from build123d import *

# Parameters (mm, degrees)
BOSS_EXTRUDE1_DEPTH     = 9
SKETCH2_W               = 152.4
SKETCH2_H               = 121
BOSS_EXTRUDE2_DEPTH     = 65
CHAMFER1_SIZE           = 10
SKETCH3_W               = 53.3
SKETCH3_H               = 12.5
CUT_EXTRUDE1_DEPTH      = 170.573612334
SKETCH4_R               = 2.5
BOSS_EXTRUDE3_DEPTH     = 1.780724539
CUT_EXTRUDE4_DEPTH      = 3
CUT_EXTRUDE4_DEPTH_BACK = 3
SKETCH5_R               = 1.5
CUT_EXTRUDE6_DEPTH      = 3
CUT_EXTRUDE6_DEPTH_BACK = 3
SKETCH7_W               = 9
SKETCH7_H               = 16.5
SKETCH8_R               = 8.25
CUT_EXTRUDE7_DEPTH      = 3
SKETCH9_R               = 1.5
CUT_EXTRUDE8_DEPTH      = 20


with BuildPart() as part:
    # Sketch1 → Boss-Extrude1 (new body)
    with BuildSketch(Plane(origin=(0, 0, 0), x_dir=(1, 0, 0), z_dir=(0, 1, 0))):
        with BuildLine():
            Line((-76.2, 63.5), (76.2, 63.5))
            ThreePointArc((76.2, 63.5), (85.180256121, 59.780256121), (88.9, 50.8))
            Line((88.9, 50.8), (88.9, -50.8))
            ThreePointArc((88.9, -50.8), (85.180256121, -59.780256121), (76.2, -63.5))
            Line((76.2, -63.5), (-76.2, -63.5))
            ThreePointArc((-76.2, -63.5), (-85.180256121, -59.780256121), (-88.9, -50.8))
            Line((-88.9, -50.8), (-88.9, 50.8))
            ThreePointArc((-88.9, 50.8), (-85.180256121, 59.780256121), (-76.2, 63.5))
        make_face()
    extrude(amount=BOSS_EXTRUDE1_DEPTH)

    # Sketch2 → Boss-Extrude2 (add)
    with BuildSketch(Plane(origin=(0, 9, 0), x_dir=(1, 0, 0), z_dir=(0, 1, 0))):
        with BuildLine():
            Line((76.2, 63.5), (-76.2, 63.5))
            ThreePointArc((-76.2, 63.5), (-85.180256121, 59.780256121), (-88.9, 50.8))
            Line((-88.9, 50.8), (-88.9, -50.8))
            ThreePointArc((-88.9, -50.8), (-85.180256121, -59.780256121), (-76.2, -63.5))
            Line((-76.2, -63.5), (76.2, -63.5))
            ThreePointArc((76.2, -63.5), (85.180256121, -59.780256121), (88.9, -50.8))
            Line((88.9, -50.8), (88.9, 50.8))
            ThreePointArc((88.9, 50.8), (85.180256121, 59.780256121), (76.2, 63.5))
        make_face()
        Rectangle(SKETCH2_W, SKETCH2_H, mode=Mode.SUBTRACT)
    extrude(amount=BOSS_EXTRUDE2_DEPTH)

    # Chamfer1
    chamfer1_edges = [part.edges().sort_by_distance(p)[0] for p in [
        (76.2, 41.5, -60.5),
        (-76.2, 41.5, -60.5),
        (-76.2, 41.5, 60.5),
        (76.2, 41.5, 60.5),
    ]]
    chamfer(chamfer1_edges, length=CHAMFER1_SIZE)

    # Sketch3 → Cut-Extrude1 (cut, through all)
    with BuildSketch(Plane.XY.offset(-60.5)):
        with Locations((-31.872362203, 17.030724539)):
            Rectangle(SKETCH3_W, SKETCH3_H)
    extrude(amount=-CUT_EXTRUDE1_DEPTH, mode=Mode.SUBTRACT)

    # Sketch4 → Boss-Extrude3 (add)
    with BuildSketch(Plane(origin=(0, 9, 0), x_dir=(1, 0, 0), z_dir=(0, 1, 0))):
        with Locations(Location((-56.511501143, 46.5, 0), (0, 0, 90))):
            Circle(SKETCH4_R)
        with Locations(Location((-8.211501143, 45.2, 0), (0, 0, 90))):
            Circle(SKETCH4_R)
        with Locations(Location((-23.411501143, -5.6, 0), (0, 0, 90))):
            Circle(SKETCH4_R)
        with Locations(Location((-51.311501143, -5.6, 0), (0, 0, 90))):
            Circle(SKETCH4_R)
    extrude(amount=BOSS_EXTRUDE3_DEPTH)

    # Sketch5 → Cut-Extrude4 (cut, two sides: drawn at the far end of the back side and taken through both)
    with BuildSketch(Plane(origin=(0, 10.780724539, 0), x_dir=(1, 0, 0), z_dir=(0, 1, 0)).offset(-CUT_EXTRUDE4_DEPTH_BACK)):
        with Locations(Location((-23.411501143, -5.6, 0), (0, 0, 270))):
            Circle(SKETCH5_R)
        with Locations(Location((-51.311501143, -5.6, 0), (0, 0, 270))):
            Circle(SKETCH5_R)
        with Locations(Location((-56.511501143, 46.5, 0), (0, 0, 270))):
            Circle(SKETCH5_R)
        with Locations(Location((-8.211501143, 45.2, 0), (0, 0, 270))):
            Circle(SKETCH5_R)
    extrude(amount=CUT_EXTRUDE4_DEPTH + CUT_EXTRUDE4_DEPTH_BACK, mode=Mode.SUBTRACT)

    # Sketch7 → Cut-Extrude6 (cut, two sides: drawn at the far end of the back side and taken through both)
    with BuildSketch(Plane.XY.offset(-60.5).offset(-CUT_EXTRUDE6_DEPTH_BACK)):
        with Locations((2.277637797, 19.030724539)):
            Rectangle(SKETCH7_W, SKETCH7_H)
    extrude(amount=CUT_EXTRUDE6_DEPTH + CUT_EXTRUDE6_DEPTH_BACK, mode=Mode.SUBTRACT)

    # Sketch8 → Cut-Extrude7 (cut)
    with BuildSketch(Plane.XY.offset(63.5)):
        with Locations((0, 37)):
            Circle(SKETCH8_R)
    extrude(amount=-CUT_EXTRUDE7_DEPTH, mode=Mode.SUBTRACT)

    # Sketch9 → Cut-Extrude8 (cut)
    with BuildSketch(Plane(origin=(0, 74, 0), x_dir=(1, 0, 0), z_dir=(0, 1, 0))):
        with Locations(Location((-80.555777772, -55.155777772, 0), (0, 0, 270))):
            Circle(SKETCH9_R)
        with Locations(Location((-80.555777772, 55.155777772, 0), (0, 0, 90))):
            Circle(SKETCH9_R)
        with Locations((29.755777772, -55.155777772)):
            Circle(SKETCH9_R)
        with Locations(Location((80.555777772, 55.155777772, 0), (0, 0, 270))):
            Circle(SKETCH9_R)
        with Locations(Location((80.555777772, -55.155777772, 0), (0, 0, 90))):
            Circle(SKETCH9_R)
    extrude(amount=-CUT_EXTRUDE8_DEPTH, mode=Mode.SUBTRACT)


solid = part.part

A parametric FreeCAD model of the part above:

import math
import FreeCAD as App
import Part
import Sketcher


def edges_at(feature, points):
    """Names of the edges that pass closest to the given points."""
    edges = feature.Shape.Edges
    near = lambda p: min(range(len(edges)), key=lambda i: edges[i].distToShape(Part.Vertex(*p))[0])
    return sorted({f"Edge{near(p) + 1}" for p in points})

doc = App.newDocument("Part")
body = doc.addObject("PartDesign::Body", "Body")

sketch1 = body.newObject("Sketcher::SketchObject", "Sketch")
sketch1.AttachmentSupport = (doc.getObject("XZ_Plane"), [""])
sketch1.MapMode = "FlatFace"
sketch1.addGeometry(Part.LineSegment(App.Vector(76, -64, 0), App.Vector(-76, -64, 0)), False)
sketch1.addGeometry(Part.ArcOfCircle(Part.Circle(App.Vector(-76, -51, 0), App.Vector(0, 0, 1), 13), math.radians(180), math.radians(270)), False)
sketch1.addGeometry(Part.LineSegment(App.Vector(-89, -51, 0), App.Vector(-89, 51, 0)), False)
sketch1.addGeometry(Part.ArcOfCircle(Part.Circle(App.Vector(-76, 51, 0), App.Vector(0, 0, 1), 13), math.radians(90), math.radians(180)), False)
sketch1.addGeometry(Part.LineSegment(App.Vector(-76, 64, 0), App.Vector(76, 64, 0)), False)
sketch1.addGeometry(Part.ArcOfCircle(Part.Circle(App.Vector(76, 51, 0), App.Vector(0, 0, 1), 13), math.radians(0), math.radians(90)), False)
sketch1.addGeometry(Part.LineSegment(App.Vector(89, 51, 0), App.Vector(89, -51, 0)), False)
sketch1.addGeometry(Part.ArcOfCircle(Part.Circle(App.Vector(76, -51, 0), App.Vector(0, 0, 1), 13), math.radians(-90), math.radians(0)), False)
sketch1.addConstraint(Sketcher.Constraint("Tangent", 0, 2, 1, 2))
sketch1.addConstraint(Sketcher.Constraint("Tangent", 1, 1, 2, 1))
sketch1.addConstraint(Sketcher.Constraint("Tangent", 2, 2, 3, 2))
sketch1.addConstraint(Sketcher.Constraint("Tangent", 3, 1, 4, 1))
sketch1.addConstraint(Sketcher.Constraint("Tangent", 4, 2, 5, 2))
sketch1.addConstraint(Sketcher.Constraint("Tangent", 5, 1, 6, 1))
sketch1.addConstraint(Sketcher.Constraint("Tangent", 6, 2, 7, 2))
sketch1.addConstraint(Sketcher.Constraint("Tangent", 7, 1, 0, 1))
sketch1.addConstraint(Sketcher.Constraint("Horizontal", 0))
sketch1.addConstraint(Sketcher.Constraint("Vertical", 2))
sketch1.addConstraint(Sketcher.Constraint("Horizontal", 4))
sketch1.addConstraint(Sketcher.Constraint("Vertical", 6))
sketch1.addConstraint(Sketcher.Constraint("Equal", 1, 3))
sketch1.addConstraint(Sketcher.Constraint("Equal", 3, 5))
sketch1.addConstraint(Sketcher.Constraint("Equal", 5, 7))
sketch1.addConstraint(Sketcher.Constraint("Symmetric", 1, 3, 5, 3, -1, 1))
sketch1.addConstraint(Sketcher.Constraint("Radius", 1, 12.7))
sketch1.addConstraint(Sketcher.Constraint("DistanceX", 0, 2, 0, 1, 152.4))
sketch1.addConstraint(Sketcher.Constraint("DistanceY", 2, 1, 2, 2, 101.6))
pad1 = body.newObject("PartDesign::Pad", "Pad")
pad1.Profile = sketch1
pad1.Length = 9
pad1.Reversed = True

sketch2 = body.newObject("Sketcher::SketchObject", "Sketch001")
sketch2.AttachmentSupport = (doc.getObject("XZ_Plane"), [""])
sketch2.MapMode = "FlatFace"
sketch2.AttachmentOffset = App.Placement(App.Vector(0, 0, -9), App.Rotation())
sketch2.addGeometry(Part.LineSegment(App.Vector(76, -64, 0), App.Vector(-76, -64, 0)), False)
sketch2.addGeometry(Part.ArcOfCircle(Part.Circle(App.Vector(-76, -51, 0), App.Vector(0, 0, 1), 13), math.radians(180), math.radians(270)), False)
sketch2.addGeometry(Part.LineSegment(App.Vector(-89, -51, 0), App.Vector(-89, 51, 0)), False)
sketch2.addGeometry(Part.ArcOfCircle(Part.Circle(App.Vector(-76, 51, 0), App.Vector(0, 0, 1), 13), math.radians(90), math.radians(180)), False)
sketch2.addGeometry(Part.LineSegment(App.Vector(-76, 64, 0), App.Vector(76, 64, 0)), False)
sketch2.addGeometry(Part.ArcOfCircle(Part.Circle(App.Vector(76, 51, 0), App.Vector(0, 0, 1), 13), math.radians(0), math.radians(90)), False)
sketch2.addGeometry(Part.LineSegment(App.Vector(89, 51, 0), App.Vector(89, -51, 0)), False)
sketch2.addGeometry(Part.ArcOfCircle(Part.Circle(App.Vector(76, -51, 0), App.Vector(0, 0, 1), 13), math.radians(-90), math.radians(0)), False)
sketch2.addGeometry(Part.LineSegment(App.Vector(76, 60, 0), App.Vector(-76, 60, 0)), False)
sketch2.addGeometry(Part.LineSegment(App.Vector(-76, 60, 0), App.Vector(-76, -60, 0)), False)
sketch2.addGeometry(Part.LineSegment(App.Vector(-76, -60, 0), App.Vector(76, -60, 0)), False)
sketch2.addGeometry(Part.LineSegment(App.Vector(76, -60, 0), App.Vector(76, 60, 0)), False)
sketch2.addConstraint(Sketcher.Constraint("Tangent", 0, 2, 1, 2))
sketch2.addConstraint(Sketcher.Constraint("Tangent", 1, 1, 2, 1))
sketch2.addConstraint(Sketcher.Constraint("Tangent", 2, 2, 3, 2))
sketch2.addConstraint(Sketcher.Constraint("Tangent", 3, 1, 4, 1))
sketch2.addConstraint(Sketcher.Constraint("Tangent", 4, 2, 5, 2))
sketch2.addConstraint(Sketcher.Constraint("Tangent", 5, 1, 6, 1))
sketch2.addConstraint(Sketcher.Constraint("Tangent", 6, 2, 7, 2))
sketch2.addConstraint(Sketcher.Constraint("Tangent", 7, 1, 0, 1))
sketch2.addConstraint(Sketcher.Constraint("Coincident", 8, 2, 9, 1))
sketch2.addConstraint(Sketcher.Constraint("Coincident", 9, 2, 10, 1))
sketch2.addConstraint(Sketcher.Constraint("Coincident", 10, 2, 11, 1))
sketch2.addConstraint(Sketcher.Constraint("Coincident", 11, 2, 8, 1))
sketch2.addConstraint(Sketcher.Constraint("Horizontal", 0))
sketch2.addConstraint(Sketcher.Constraint("Vertical", 2))
sketch2.addConstraint(Sketcher.Constraint("Horizontal", 4))
sketch2.addConstraint(Sketcher.Constraint("Vertical", 6))
sketch2.addConstraint(Sketcher.Constraint("Horizontal", 8))
sketch2.addConstraint(Sketcher.Constraint("Vertical", 9))
sketch2.addConstraint(Sketcher.Constraint("Horizontal", 10))
sketch2.addConstraint(Sketcher.Constraint("Vertical", 11))
sketch2.addConstraint(Sketcher.Constraint("Equal", 1, 3))
sketch2.addConstraint(Sketcher.Constraint("Equal", 3, 5))
sketch2.addConstraint(Sketcher.Constraint("Equal", 5, 7))
sketch2.addConstraint(Sketcher.Constraint("Symmetric", 1, 3, 5, 3, -1, 1))
sketch2.addConstraint(Sketcher.Constraint("Symmetric", 8, 2, 10, 2, -1, 1))
sketch2.addConstraint(Sketcher.Constraint("Vertical", 3, 1, 8, 2))
sketch2.addConstraint(Sketcher.Constraint("Radius", 1, 12.7))
sketch2.addConstraint(Sketcher.Constraint("DistanceY", 9, 2, 9, 1, 121.0))
sketch2.addConstraint(Sketcher.Constraint("DistanceX", 0, 2, 0, 1, 152.4))
sketch2.addConstraint(Sketcher.Constraint("DistanceY", 2, 1, 2, 2, 101.6))
pad2 = body.newObject("PartDesign::Pad", "Pad001")
pad2.Profile = sketch2
pad2.Length = 65
pad2.Reversed = True
doc.recompute()

chamfer = body.newObject("PartDesign::Chamfer", "Chamfer")
chamfer.Base = (pad2, edges_at(pad2, [
    (76.2, 41.5, -60.5),
    (-76.2, 41.5, -60.5),
    (-76.2, 41.5, 60.5),
    (76.2, 41.5, 60.5),
]))
chamfer.Size = 10

sketch3 = body.newObject("Sketcher::SketchObject", "Sketch002")
sketch3.AttachmentSupport = (doc.getObject("XY_Plane"), [""])
sketch3.MapMode = "FlatFace"
sketch3.AttachmentOffset = App.Placement(App.Vector(0, 0, -60.5), App.Rotation())
sketch3.addGeometry(Part.LineSegment(App.Vector(-59, 23, 0), App.Vector(-59, 11, 0)), False)
sketch3.addGeometry(Part.LineSegment(App.Vector(-59, 11, 0), App.Vector(-5, 11, 0)), False)
sketch3.addGeometry(Part.LineSegment(App.Vector(-5, 11, 0), App.Vector(-5, 23, 0)), False)
sketch3.addGeometry(Part.LineSegment(App.Vector(-5, 23, 0), App.Vector(-59, 23, 0)), False)
sketch3.addConstraint(Sketcher.Constraint("Coincident", 0, 2, 1, 1))
sketch3.addConstraint(Sketcher.Constraint("Coincident", 1, 2, 2, 1))
sketch3.addConstraint(Sketcher.Constraint("Coincident", 2, 2, 3, 1))
sketch3.addConstraint(Sketcher.Constraint("Coincident", 3, 2, 0, 1))
sketch3.addConstraint(Sketcher.Constraint("Vertical", 0))
sketch3.addConstraint(Sketcher.Constraint("Horizontal", 1))
sketch3.addConstraint(Sketcher.Constraint("Vertical", 2))
sketch3.addConstraint(Sketcher.Constraint("Horizontal", 3))
sketch3.addConstraint(Sketcher.Constraint("DistanceX", 1, 1, 1, 2, 53.3))
sketch3.addConstraint(Sketcher.Constraint("DistanceY", 0, 2, 0, 1, 12.5))
sketch3.addConstraint(Sketcher.Constraint("DistanceX", 0, 2, -1, 1, 58.522362))
sketch3.addConstraint(Sketcher.Constraint("DistanceY", -1, 1, 0, 2, 10.780725))
pocket1 = body.newObject("PartDesign::Pocket", "Pocket")
pocket1.Profile = sketch3
pocket1.Type = "ThroughAll"

sketch4 = body.newObject("Sketcher::SketchObject", "Sketch003")
sketch4.AttachmentSupport = (doc.getObject("XZ_Plane"), [""])
sketch4.MapMode = "FlatFace"
sketch4.AttachmentOffset = App.Placement(App.Vector(0, 0, -9), App.Rotation())
sketch4.addGeometry(Part.Circle(App.Vector(-56.5, -46.5, 0), App.Vector(0, 0, 1), 2.5), False)
sketch4.addGeometry(Part.Circle(App.Vector(-8.2, -45.2, 0), App.Vector(0, 0, 1), 2.5), False)
sketch4.addGeometry(Part.Circle(App.Vector(-23.4, 5.6, 0), App.Vector(0, 0, 1), 2.5), False)
sketch4.addGeometry(Part.Circle(App.Vector(-51.3, 5.6, 0), App.Vector(0, 0, 1), 2.5), False)
sketch4.addConstraint(Sketcher.Constraint("Equal", 0, 1))
sketch4.addConstraint(Sketcher.Constraint("Equal", 1, 2))
sketch4.addConstraint(Sketcher.Constraint("Equal", 2, 3))
sketch4.addConstraint(Sketcher.Constraint("Horizontal", 2, 3, 3, 3))
sketch4.addConstraint(Sketcher.Constraint("Diameter", 0, 5.0))
sketch4.addConstraint(Sketcher.Constraint("DistanceY", 0, 3, -1, 1, 46.5))
sketch4.addConstraint(Sketcher.Constraint("DistanceY", 1, 3, -1, 1, 45.2))
sketch4.addConstraint(Sketcher.Constraint("DistanceY", -1, 1, 2, 3, 5.6))
sketch4.addConstraint(Sketcher.Constraint("DistanceX", 0, 3, 1, 3, 48.3))
sketch4.addConstraint(Sketcher.Constraint("DistanceX", 2, 3, 1, 3, 15.2))
sketch4.addConstraint(Sketcher.Constraint("DistanceX", 3, 3, 2, 3, 27.9))
sketch4.addConstraint(Sketcher.Constraint("DistanceX", 0, 3, -1, 1, 56.511501))
pad3 = body.newObject("PartDesign::Pad", "Pad002")
pad3.Profile = sketch4
pad3.Length = 1.780725
pad3.Reversed = True

sketch5 = body.newObject("Sketcher::SketchObject", "Sketch004")
sketch5.AttachmentSupport = (doc.getObject("XZ_Plane"), [""])
sketch5.MapMode = "FlatFace"
sketch5.AttachmentOffset = App.Placement(App.Vector(0, 0, -10.780725), App.Rotation())
sketch5.addGeometry(Part.Circle(App.Vector(-23.4, 5.6, 0), App.Vector(0, 0, 1), 1.5), False)
sketch5.addGeometry(Part.Circle(App.Vector(-51.3, 5.6, 0), App.Vector(0, 0, 1), 1.5), False)
sketch5.addGeometry(Part.Circle(App.Vector(-56.5, -46.5, 0), App.Vector(0, 0, 1), 1.5), False)
sketch5.addGeometry(Part.Circle(App.Vector(-8.2, -45.2, 0), App.Vector(0, 0, 1), 1.5), False)
sketch5.addConstraint(Sketcher.Constraint("Equal", 0, 1))
sketch5.addConstraint(Sketcher.Constraint("Equal", 1, 2))
sketch5.addConstraint(Sketcher.Constraint("Equal", 2, 3))
sketch5.addConstraint(Sketcher.Constraint("Horizontal", 0, 3, 1, 3))
sketch5.addConstraint(Sketcher.Constraint("Diameter", 0, 3.0))
sketch5.addConstraint(Sketcher.Constraint("DistanceY", -1, 1, 0, 3, 5.6))
sketch5.addConstraint(Sketcher.Constraint("DistanceY", 2, 3, -1, 1, 46.5))
sketch5.addConstraint(Sketcher.Constraint("DistanceY", 3, 3, -1, 1, 45.2))
sketch5.addConstraint(Sketcher.Constraint("DistanceX", 1, 3, 0, 3, 27.9))
sketch5.addConstraint(Sketcher.Constraint("DistanceX", 2, 3, 1, 3, 5.2))
sketch5.addConstraint(Sketcher.Constraint("DistanceX", 2, 3, 3, 3, 48.3))
sketch5.addConstraint(Sketcher.Constraint("DistanceX", 0, 3, -1, 1, 23.411501))
pocket2 = body.newObject("PartDesign::Pocket", "Pocket001")
pocket2.Profile = sketch5
pocket2.Type = "TwoLengths"
pocket2.Length = 3
pocket2.Length2 = 3

sketch6 = body.newObject("Sketcher::SketchObject", "Sketch005")
sketch6.AttachmentSupport = (doc.getObject("XY_Plane"), [""])
sketch6.MapMode = "FlatFace"
sketch6.AttachmentOffset = App.Placement(App.Vector(0, 0, -60.5), App.Rotation())
sketch6.addGeometry(Part.LineSegment(App.Vector(-2, 27, 0), App.Vector(-2, 11, 0)), False)
sketch6.addGeometry(Part.LineSegment(App.Vector(-2, 11, 0), App.Vector(7, 11, 0)), False)
sketch6.addGeometry(Part.LineSegment(App.Vector(7, 11, 0), App.Vector(7, 27, 0)), False)
sketch6.addGeometry(Part.LineSegment(App.Vector(7, 27, 0), App.Vector(-2, 27, 0)), False)
sketch6.addConstraint(Sketcher.Constraint("Coincident", 0, 2, 1, 1))
sketch6.addConstraint(Sketcher.Constraint("Coincident", 1, 2, 2, 1))
sketch6.addConstraint(Sketcher.Constraint("Coincident", 2, 2, 3, 1))
sketch6.addConstraint(Sketcher.Constraint("Coincident", 3, 2, 0, 1))
sketch6.addConstraint(Sketcher.Constraint("Vertical", 0))
sketch6.addConstraint(Sketcher.Constraint("Horizontal", 1))
sketch6.addConstraint(Sketcher.Constraint("Vertical", 2))
sketch6.addConstraint(Sketcher.Constraint("Horizontal", 3))
sketch6.addConstraint(Sketcher.Constraint("DistanceX", 1, 1, 1, 2, 9.0))
sketch6.addConstraint(Sketcher.Constraint("DistanceY", 0, 2, 0, 1, 16.5))
sketch6.addConstraint(Sketcher.Constraint("DistanceX", 0, 2, -1, 1, 2.222362))
sketch6.addConstraint(Sketcher.Constraint("DistanceY", -1, 1, 0, 2, 10.780725))
pocket3 = body.newObject("PartDesign::Pocket", "Pocket002")
pocket3.Profile = sketch6
pocket3.Type = "TwoLengths"
pocket3.Length = 3
pocket3.Length2 = 3
pocket3.Reversed = True

sketch7 = body.newObject("Sketcher::SketchObject", "Sketch006")
sketch7.AttachmentSupport = (doc.getObject("XY_Plane"), [""])
sketch7.MapMode = "FlatFace"
sketch7.AttachmentOffset = App.Placement(App.Vector(0, 0, 63.5), App.Rotation())
sketch7.addGeometry(Part.Circle(App.Vector(0, 37, 0), App.Vector(0, 0, 1), 8), False)
sketch7.addConstraint(Sketcher.Constraint("PointOnObject", 0, 3, -2))
sketch7.addConstraint(Sketcher.Constraint("Diameter", 0, 16.5))
sketch7.addConstraint(Sketcher.Constraint("DistanceY", -1, 1, 0, 3, 37.0))
pocket4 = body.newObject("PartDesign::Pocket", "Pocket003")
pocket4.Profile = sketch7
pocket4.Length = 3

sketch8 = body.newObject("Sketcher::SketchObject", "Sketch007")
sketch8.AttachmentSupport = (doc.getObject("XZ_Plane"), [""])
sketch8.MapMode = "FlatFace"
sketch8.AttachmentOffset = App.Placement(App.Vector(0, 0, -74), App.Rotation())
sketch8.addGeometry(Part.Circle(App.Vector(-80.6, 55.2, 0), App.Vector(0, 0, 1), 1.5), False)
sketch8.addGeometry(Part.Circle(App.Vector(-80.6, -55.2, 0), App.Vector(0, 0, 1), 1.5), False)
sketch8.addGeometry(Part.Circle(App.Vector(29.8, 55.2, 0), App.Vector(0, 0, 1), 1.5), False)
sketch8.addGeometry(Part.Circle(App.Vector(80.6, -55.2, 0), App.Vector(0, 0, 1), 1.5), False)
sketch8.addGeometry(Part.Circle(App.Vector(80.6, 55.2, 0), App.Vector(0, 0, 1), 1.5), False)
sketch8.addConstraint(Sketcher.Constraint("Equal", 0, 1))
sketch8.addConstraint(Sketcher.Constraint("Equal", 1, 2))
sketch8.addConstraint(Sketcher.Constraint("Equal", 2, 3))
sketch8.addConstraint(Sketcher.Constraint("Equal", 3, 4))
sketch8.addConstraint(Sketcher.Constraint("Symmetric", 0, 3, 3, 3, -1, 1))
sketch8.addConstraint(Sketcher.Constraint("Symmetric", 1, 3, 4, 3, -1, 1))
sketch8.addConstraint(Sketcher.Constraint("Symmetric", 1, 3, 3, 3, -2))
sketch8.addConstraint(Sketcher.Constraint("Horizontal", 0, 3, 2, 3))
sketch8.addConstraint(Sketcher.Constraint("Diameter", 0, 3.0))
sketch8.addConstraint(Sketcher.Constraint("DistanceX", 2, 3, 3, 3, 50.8))
sketch8.addConstraint(Sketcher.Constraint("DistanceX", 0, 3, -1, 1, 80.555778))
sketch8.addConstraint(Sketcher.Constraint("DistanceY", -1, 1, 0, 3, 55.155778))
pocket5 = body.newObject("PartDesign::Pocket", "Pocket004")
pocket5.Profile = sketch8
pocket5.Length = 20
pocket5.Reversed = True

doc.recompute()
